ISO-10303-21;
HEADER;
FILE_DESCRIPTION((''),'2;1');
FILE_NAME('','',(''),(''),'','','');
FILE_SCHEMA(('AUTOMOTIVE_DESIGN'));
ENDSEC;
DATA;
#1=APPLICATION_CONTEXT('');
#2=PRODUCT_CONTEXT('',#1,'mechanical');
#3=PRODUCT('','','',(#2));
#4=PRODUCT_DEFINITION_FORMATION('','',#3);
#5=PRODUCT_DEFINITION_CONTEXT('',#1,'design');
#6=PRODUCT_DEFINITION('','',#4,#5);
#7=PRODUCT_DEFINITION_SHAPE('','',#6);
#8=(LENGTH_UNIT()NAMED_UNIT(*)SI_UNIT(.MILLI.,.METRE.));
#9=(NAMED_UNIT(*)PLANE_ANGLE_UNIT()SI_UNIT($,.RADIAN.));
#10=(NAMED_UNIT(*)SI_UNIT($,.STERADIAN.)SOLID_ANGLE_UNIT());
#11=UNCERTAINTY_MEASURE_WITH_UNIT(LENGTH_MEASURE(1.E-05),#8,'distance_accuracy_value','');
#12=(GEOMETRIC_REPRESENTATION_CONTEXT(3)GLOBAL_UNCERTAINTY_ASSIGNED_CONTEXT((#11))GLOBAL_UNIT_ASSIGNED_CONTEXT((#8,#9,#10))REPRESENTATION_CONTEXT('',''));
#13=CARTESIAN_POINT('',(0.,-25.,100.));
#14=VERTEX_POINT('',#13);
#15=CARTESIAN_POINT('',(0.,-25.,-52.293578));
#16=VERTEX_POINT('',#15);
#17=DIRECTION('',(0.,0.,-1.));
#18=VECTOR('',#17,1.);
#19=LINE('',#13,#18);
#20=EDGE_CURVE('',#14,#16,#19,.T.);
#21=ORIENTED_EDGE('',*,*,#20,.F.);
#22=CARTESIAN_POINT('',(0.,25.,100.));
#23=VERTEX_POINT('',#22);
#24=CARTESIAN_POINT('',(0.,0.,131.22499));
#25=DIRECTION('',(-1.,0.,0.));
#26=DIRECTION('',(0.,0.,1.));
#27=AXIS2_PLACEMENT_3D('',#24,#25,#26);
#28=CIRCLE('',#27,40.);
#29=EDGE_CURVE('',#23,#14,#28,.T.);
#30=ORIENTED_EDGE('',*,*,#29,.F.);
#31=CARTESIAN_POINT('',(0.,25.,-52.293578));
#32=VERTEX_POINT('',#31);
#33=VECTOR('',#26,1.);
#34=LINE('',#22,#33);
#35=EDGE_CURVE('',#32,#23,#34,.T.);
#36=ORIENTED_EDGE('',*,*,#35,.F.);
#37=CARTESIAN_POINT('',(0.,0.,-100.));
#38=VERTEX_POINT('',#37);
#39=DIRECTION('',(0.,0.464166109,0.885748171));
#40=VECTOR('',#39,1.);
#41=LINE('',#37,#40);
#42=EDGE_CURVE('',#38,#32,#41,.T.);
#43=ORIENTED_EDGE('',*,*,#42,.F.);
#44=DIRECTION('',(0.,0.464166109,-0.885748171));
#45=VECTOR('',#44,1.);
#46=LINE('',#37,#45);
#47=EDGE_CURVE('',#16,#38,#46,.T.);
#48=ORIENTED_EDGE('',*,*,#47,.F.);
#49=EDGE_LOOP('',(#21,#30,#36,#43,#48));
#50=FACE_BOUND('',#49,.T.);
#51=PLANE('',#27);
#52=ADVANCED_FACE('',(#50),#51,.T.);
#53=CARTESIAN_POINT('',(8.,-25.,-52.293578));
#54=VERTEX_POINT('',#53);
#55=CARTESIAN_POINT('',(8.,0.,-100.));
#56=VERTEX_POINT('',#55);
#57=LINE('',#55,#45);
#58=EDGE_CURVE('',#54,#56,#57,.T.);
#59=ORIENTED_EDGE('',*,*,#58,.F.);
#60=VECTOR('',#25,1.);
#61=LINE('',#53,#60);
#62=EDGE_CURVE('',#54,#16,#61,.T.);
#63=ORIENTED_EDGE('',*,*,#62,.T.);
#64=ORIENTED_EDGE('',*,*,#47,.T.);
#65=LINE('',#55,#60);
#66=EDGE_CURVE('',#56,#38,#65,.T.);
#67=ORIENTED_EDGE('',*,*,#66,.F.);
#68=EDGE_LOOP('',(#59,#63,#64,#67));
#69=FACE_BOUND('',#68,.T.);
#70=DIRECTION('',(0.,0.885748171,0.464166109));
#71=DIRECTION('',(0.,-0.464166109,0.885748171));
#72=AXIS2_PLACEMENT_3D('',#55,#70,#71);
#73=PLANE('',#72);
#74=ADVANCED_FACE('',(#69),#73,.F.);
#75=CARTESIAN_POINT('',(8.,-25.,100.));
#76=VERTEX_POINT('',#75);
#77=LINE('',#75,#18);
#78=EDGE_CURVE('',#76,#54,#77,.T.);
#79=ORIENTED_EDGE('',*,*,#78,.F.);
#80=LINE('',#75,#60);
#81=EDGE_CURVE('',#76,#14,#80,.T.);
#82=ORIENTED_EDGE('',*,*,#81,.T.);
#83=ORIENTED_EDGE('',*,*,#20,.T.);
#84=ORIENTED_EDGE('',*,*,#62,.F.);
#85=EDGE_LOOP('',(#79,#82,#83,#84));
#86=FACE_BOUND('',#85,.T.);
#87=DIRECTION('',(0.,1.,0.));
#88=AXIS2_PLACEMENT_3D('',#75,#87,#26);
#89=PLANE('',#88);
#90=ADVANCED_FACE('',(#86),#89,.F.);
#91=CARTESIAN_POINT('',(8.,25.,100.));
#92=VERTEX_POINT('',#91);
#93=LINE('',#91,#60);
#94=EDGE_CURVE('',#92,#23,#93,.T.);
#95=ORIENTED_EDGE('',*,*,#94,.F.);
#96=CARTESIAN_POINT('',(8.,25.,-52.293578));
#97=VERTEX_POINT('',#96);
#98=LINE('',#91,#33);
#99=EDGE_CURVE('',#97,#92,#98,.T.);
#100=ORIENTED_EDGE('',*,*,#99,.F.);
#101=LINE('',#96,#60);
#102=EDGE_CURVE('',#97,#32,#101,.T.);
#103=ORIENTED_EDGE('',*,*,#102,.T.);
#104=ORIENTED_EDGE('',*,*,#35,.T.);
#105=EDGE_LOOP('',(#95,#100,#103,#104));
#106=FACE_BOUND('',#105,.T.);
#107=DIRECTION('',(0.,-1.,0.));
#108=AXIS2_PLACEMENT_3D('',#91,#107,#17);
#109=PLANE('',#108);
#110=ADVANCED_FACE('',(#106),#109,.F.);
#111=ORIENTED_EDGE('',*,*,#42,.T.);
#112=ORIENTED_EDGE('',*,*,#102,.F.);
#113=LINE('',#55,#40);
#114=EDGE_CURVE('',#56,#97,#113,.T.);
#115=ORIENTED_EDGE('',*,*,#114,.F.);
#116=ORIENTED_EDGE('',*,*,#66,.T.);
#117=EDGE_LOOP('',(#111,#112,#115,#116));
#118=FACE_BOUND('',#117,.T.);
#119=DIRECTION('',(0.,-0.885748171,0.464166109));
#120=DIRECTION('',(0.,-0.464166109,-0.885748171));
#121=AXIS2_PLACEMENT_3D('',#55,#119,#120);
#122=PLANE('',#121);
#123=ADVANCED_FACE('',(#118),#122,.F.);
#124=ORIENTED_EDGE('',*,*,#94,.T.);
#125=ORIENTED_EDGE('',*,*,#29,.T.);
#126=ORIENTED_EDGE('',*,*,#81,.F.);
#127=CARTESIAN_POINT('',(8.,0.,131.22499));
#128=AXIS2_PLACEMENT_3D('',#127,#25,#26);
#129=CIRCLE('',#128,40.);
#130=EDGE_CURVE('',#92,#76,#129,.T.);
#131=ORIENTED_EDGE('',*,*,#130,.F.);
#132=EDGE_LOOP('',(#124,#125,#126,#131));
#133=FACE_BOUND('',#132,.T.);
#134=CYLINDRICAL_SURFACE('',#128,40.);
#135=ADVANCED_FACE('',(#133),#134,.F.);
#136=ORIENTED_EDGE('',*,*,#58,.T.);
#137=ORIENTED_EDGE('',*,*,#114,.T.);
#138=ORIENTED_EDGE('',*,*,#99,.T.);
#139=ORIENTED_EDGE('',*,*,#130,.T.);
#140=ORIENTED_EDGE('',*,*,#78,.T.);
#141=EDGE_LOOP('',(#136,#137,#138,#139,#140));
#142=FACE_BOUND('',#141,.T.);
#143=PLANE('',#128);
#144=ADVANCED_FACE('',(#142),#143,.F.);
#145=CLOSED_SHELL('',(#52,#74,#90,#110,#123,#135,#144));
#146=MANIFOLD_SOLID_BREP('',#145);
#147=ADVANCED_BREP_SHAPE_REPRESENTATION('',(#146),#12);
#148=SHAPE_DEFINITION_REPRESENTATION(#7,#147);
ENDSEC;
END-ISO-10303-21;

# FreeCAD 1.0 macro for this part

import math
import FreeCAD as App
import Part
import Sketcher

doc = App.newDocument("Part")
params = doc.addObject("Spreadsheet::Sheet", "Params")
for row, (alias, value) in enumerate([
    ("sketch1_radius", "40 mm"),
    ("pad1_length", "8 mm"),
], start=1):
    params.set(f"A{row}", alias)
    params.set(f"B{row}", "=" + value)
    params.setAlias(f"B{row}", alias)

body = doc.addObject("PartDesign::Body", "Body")

sketch1 = doc.addObject("Sketcher::SketchObject", "Sketch")
body.addObject(sketch1)
sketch1.AttachmentSupport = (doc.YZ_Plane, [""])
sketch1.MapMode = "FlatFace"
sketch1.addGeometry([
    Part.LineSegment(App.Vector(0, -100, 0), App.Vector(25, -52, 0)),
    Part.LineSegment(App.Vector(25, -52, 0), App.Vector(25, 100, 0)),
    Part.ArcOfCircle(Part.Circle(App.Vector(0, 131, 0), App.Vector(0, 0, 1), 40), math.radians(-129), math.radians(-51)),
    Part.LineSegment(App.Vector(-25, 100, 0), App.Vector(-25, -52, 0)),
    Part.LineSegment(App.Vector(-25, -52, 0), App.Vector(0, -100, 0)),
], False)
sketch1.addConstraint([
    Sketcher.Constraint("Coincident", 0, 2, 1, 1),
    Sketcher.Constraint("Coincident", 1, 2, 2, 2),
    Sketcher.Constraint("Coincident", 2, 1, 3, 1),
    Sketcher.Constraint("Coincident", 3, 2, 4, 1),
    Sketcher.Constraint("Coincident", 4, 2, 0, 1),
    Sketcher.Constraint("Vertical", 1),
    Sketcher.Constraint("Vertical", 3),
    Sketcher.Constraint("Symmetric", 1, 2, 2, 1, -2),
    Sketcher.Constraint("PointOnObject", 4, 2, -2),
    Sketcher.Constraint("Horizontal", 0, 2, 3, 2),
    Sketcher.Constraint("Radius", 2, 40.0),
    Sketcher.Constraint("DistanceX", -1, 1, 0, 2, 25.0),
    Sketcher.Constraint("DistanceY", -1, 1, 1, 2, 100.0),
    Sketcher.Constraint("DistanceY", 4, 2, -1, 1, 100.0),
    Sketcher.Constraint("Distance", 0, 53.860029),
])
sketch1.setExpression("Constraints[10]", "Params.sketch1_radius")
pad1 = doc.addObject("PartDesign::Pad", "Pad")
body.addObject(pad1)
pad1.Profile = sketch1
pad1.setExpression("Length", "Params.pad1_length")

doc.recompute()
